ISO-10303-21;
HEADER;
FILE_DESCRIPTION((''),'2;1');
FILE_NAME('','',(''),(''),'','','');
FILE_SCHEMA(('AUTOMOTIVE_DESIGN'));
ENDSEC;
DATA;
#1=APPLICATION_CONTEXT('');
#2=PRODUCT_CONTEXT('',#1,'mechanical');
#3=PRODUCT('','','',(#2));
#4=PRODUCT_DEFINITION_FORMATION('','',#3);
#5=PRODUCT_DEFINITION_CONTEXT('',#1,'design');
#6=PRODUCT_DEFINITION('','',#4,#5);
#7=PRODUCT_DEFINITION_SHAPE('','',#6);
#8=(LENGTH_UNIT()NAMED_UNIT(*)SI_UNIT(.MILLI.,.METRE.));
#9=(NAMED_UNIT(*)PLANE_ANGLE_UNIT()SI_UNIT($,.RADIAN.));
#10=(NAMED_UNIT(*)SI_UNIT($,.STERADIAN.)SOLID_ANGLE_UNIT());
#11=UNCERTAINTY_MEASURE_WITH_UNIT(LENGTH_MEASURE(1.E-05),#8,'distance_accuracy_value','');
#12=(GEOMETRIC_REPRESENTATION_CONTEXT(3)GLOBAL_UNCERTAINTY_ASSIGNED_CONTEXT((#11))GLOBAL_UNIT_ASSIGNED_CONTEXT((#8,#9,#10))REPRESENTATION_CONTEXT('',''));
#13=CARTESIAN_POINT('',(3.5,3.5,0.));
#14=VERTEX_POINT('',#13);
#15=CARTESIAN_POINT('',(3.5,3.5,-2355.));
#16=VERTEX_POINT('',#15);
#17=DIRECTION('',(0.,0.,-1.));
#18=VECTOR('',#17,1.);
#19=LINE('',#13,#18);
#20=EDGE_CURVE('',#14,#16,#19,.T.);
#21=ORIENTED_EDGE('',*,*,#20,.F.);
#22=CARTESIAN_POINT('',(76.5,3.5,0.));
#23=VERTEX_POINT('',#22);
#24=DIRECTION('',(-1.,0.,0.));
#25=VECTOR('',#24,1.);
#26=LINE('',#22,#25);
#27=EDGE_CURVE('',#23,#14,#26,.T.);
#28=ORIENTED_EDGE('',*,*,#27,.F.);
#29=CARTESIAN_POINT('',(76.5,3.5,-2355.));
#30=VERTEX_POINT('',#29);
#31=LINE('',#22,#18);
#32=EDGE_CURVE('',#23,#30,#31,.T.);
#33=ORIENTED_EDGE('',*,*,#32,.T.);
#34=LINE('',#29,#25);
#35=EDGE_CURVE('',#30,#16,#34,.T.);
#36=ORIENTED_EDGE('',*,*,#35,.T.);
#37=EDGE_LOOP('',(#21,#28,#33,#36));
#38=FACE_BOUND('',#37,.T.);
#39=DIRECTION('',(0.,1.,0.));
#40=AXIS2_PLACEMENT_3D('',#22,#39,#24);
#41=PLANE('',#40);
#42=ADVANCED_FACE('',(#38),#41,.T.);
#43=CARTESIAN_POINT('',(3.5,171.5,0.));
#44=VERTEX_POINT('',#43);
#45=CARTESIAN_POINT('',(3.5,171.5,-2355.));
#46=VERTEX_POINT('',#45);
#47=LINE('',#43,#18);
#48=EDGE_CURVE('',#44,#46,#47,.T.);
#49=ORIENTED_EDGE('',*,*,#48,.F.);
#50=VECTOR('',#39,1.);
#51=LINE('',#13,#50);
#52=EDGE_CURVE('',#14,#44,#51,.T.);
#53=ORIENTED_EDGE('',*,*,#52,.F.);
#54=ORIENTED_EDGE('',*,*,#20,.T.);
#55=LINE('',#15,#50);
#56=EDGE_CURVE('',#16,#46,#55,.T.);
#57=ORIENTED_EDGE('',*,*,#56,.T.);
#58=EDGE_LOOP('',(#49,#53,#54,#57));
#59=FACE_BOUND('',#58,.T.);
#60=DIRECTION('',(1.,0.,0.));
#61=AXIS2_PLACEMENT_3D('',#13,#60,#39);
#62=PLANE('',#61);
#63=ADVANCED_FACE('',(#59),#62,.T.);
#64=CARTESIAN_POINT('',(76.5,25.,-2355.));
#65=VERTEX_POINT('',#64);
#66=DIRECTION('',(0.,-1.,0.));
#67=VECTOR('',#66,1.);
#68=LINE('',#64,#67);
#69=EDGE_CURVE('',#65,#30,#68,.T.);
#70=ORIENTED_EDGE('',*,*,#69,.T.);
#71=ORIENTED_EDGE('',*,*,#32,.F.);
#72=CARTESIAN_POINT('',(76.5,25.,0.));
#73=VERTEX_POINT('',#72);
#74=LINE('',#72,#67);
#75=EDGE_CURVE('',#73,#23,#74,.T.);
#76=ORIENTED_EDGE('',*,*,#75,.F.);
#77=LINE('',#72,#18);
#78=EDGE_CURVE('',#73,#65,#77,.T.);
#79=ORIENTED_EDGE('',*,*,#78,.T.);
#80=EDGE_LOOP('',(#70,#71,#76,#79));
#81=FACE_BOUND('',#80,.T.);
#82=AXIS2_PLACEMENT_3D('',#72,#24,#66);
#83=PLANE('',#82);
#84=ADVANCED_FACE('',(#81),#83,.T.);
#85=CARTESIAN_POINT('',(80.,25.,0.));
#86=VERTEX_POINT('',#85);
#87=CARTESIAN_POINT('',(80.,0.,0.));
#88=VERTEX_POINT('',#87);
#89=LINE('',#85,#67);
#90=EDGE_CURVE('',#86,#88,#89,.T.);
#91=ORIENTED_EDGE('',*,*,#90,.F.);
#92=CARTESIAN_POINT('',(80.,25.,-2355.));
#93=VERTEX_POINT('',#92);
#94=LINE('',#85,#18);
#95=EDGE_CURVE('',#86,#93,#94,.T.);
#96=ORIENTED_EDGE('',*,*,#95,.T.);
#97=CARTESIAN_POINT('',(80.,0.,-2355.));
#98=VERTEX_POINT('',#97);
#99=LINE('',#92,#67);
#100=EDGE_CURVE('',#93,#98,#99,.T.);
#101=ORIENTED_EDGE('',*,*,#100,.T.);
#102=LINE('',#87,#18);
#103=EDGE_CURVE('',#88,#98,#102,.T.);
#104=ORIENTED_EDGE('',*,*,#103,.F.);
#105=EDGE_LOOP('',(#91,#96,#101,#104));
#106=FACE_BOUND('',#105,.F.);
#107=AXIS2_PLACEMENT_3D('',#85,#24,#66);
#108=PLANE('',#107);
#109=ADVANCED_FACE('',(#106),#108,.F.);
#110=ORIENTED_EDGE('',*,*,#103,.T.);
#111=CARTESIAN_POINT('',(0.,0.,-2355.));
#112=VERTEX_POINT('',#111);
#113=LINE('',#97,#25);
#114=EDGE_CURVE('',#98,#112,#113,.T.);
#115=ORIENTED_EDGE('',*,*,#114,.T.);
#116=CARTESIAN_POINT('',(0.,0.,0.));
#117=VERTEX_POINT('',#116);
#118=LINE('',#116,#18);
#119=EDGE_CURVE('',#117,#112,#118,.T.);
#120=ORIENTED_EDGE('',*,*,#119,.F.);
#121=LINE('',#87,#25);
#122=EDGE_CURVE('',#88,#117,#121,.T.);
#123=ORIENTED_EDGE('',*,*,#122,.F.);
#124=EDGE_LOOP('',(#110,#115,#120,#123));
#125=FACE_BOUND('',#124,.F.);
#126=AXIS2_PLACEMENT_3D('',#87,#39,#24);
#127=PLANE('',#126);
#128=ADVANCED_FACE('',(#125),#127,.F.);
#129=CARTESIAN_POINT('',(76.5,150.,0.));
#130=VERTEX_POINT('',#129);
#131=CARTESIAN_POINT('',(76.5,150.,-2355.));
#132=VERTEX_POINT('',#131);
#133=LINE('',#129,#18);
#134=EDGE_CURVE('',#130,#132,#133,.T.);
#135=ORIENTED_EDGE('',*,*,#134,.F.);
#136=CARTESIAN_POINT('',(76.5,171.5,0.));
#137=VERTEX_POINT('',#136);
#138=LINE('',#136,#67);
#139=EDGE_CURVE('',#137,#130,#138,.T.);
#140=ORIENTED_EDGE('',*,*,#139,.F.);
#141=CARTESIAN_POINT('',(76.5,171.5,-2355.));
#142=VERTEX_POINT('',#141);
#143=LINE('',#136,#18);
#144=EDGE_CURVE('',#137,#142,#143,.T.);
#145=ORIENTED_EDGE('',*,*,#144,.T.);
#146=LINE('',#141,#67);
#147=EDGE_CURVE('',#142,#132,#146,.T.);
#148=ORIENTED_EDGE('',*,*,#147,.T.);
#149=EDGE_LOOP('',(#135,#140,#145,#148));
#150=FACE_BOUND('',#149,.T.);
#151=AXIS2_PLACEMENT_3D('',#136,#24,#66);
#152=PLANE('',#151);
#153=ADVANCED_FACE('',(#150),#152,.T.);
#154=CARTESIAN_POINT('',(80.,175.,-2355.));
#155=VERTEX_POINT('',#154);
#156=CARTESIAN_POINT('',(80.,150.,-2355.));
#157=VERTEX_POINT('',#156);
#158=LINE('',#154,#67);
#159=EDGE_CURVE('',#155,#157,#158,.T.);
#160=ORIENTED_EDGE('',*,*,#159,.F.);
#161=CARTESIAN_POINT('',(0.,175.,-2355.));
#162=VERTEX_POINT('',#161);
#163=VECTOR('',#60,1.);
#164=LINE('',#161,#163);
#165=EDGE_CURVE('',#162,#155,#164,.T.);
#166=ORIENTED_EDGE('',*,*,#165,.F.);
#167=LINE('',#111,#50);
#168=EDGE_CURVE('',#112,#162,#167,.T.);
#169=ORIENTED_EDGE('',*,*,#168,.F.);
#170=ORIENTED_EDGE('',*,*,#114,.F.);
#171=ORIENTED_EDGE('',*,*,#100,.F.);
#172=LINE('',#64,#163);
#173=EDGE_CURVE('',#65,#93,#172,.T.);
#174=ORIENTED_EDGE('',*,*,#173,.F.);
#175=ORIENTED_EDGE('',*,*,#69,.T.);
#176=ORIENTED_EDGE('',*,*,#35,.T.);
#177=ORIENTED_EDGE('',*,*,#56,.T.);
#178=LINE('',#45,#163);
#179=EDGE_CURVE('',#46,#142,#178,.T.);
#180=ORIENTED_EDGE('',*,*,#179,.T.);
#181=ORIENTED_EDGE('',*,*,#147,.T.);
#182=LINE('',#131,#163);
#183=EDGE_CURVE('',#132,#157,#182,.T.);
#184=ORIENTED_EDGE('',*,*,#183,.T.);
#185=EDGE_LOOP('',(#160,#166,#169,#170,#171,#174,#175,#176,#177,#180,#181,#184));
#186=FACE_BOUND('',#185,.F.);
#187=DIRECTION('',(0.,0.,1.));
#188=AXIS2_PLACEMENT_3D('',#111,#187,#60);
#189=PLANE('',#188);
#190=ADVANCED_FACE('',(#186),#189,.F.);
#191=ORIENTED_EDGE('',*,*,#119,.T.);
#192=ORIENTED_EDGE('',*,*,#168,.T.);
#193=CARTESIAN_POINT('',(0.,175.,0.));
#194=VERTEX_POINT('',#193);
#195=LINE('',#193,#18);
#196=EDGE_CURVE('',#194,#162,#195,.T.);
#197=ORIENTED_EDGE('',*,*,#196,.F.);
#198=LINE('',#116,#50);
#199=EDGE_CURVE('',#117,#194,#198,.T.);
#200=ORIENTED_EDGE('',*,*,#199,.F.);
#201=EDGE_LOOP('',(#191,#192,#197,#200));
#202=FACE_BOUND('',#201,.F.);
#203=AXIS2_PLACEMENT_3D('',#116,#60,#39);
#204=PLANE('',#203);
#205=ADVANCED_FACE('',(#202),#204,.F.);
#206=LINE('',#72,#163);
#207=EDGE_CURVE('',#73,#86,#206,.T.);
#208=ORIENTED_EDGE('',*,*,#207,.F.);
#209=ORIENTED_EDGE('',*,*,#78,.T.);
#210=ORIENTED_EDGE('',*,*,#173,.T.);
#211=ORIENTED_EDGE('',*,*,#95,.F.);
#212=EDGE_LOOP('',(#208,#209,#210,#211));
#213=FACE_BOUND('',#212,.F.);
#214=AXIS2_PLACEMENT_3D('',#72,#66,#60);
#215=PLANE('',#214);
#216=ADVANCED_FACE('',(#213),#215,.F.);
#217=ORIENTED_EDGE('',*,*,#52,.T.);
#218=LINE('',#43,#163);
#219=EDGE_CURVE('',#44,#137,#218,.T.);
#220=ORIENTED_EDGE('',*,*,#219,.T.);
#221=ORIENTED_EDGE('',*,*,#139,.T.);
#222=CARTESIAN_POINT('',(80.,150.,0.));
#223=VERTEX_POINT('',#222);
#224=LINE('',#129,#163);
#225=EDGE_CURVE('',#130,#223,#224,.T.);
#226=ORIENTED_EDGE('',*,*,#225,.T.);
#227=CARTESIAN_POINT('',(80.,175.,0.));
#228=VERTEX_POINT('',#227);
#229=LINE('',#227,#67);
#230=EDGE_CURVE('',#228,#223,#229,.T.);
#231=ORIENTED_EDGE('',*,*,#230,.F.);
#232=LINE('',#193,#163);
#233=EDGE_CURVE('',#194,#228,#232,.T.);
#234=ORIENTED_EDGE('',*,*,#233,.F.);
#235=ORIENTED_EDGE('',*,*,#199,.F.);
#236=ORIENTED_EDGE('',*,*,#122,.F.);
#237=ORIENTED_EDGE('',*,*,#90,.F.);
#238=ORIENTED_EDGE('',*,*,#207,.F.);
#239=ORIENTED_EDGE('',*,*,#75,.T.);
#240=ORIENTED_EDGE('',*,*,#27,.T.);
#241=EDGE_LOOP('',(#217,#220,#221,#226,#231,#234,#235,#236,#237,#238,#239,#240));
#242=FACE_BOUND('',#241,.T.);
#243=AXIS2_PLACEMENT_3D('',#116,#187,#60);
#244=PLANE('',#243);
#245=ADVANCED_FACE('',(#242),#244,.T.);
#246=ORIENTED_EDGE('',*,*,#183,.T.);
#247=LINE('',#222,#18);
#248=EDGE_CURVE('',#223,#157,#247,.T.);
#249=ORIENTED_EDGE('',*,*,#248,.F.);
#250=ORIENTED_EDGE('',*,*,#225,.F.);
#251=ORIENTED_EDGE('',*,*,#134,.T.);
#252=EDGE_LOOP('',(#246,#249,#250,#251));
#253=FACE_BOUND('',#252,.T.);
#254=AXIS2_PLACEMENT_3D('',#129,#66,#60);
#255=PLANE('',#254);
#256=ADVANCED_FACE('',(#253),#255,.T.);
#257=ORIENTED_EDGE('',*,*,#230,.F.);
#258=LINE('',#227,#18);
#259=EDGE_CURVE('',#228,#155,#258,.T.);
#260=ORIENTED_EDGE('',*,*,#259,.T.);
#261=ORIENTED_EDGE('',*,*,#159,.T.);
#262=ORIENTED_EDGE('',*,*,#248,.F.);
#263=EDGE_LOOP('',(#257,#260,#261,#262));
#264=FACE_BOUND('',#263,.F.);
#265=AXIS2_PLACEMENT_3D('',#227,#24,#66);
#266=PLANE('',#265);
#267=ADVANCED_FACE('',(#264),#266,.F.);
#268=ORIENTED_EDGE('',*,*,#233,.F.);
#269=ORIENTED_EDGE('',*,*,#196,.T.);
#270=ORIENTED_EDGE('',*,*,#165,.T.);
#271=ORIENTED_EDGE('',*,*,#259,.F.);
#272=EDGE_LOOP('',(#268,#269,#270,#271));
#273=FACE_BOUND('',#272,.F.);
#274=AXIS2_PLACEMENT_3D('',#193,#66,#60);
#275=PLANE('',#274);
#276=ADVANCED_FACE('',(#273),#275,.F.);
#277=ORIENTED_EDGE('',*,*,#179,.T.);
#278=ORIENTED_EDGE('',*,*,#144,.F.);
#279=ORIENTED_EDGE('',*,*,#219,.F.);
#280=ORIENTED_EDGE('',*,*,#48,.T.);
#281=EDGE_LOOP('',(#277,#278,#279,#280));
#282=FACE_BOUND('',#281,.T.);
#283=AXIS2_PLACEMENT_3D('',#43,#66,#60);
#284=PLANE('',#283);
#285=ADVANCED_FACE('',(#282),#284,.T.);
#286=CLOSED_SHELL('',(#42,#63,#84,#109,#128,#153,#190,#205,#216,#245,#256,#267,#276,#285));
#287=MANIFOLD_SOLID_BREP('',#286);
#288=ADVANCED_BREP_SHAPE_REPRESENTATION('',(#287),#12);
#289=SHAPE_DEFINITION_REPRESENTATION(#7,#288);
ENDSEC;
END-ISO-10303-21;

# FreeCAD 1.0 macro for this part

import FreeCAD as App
import Part
import Sketcher

V = App.Vector

doc = App.newDocument("Part")
body = doc.addObject("PartDesign::Body", "Body")

# Sketch on XY plane
sketch1 = body.newObject("Sketcher::SketchObject", "Sketch")
sketch1.AttachmentSupport = (doc.getObject("XY_Plane"), [""])
sketch1.MapMode = "FlatFace"
sketch1.addGeometry([
    Part.LineSegment(V(80, 0, 0), V(80, 25, 0)),  # 0
    Part.LineSegment(V(80, 25, 0), V(76.5, 25, 0)),  # 1
    Part.LineSegment(V(76.5, 25, 0), V(76.5, 3.5, 0)),  # 2
    Part.LineSegment(V(76.5, 3.5, 0), V(3.5, 3.5, 0)),  # 3
    Part.LineSegment(V(3.5, 3.5, 0), V(3.5, 171.5, 0)),  # 4
    Part.LineSegment(V(3.5, 171.5, 0), V(76.5, 171.5, 0)),  # 5
    Part.LineSegment(V(76.5, 171.5, 0), V(76.5, 150, 0)),  # 6
    Part.LineSegment(V(76.5, 150, 0), V(80, 150, 0)),  # 7
    Part.LineSegment(V(80, 150, 0), V(80, 175, 0)),  # 8
    Part.LineSegment(V(80, 175, 0), V(0, 175, 0)),  # 9
    Part.LineSegment(V(0, 175, 0), V(0, 0, 0)),  # 10
    Part.LineSegment(V(0, 0, 0), V(80, 0, 0)),  # 11
], False)
sketch1.addConstraint([
    Sketcher.Constraint("Coincident", 0, 2, 1, 1),
    Sketcher.Constraint("Coincident", 1, 2, 2, 1),
    Sketcher.Constraint("Coincident", 2, 2, 3, 1),
    Sketcher.Constraint("Coincident", 3, 2, 4, 1),
    Sketcher.Constraint("Coincident", 4, 2, 5, 1),
    Sketcher.Constraint("Coincident", 5, 2, 6, 1),
    Sketcher.Constraint("Coincident", 6, 2, 7, 1),
    Sketcher.Constraint("Coincident", 7, 2, 8, 1),
    Sketcher.Constraint("Coincident", 8, 2, 9, 1),
    Sketcher.Constraint("Coincident", 9, 2, 10, 1),
    Sketcher.Constraint("Coincident", 10, 2, 11, 1),
    Sketcher.Constraint("Coincident", 11, 2, 0, 1),
    Sketcher.Constraint("Vertical", 0),
    Sketcher.Constraint("Horizontal", 1),
    Sketcher.Constraint("Vertical", 2),
    Sketcher.Constraint("Horizontal", 3),
    Sketcher.Constraint("Vertical", 4),
    Sketcher.Constraint("Horizontal", 5),
    Sketcher.Constraint("Vertical", 6),
    Sketcher.Constraint("Horizontal", 7),
    Sketcher.Constraint("Vertical", 8),
    Sketcher.Constraint("Horizontal", 9),
    Sketcher.Constraint("Vertical", 10),
    Sketcher.Constraint("Horizontal", 11),
    Sketcher.Constraint("Coincident", 10, 2, -1, 1),
    Sketcher.Constraint("Vertical", 2, 2, 5, 2),
    Sketcher.Constraint("Vertical", 0, 2, 7, 2),
    Sketcher.Constraint("Equal", 2, 6),
    Sketcher.Constraint("Equal", 0, 8),
    Sketcher.Constraint("DistanceX", 9, 2, 9, 1, 80.0),
    Sketcher.Constraint("DistanceY", 0, 1, 0, 2, 25.0),
    Sketcher.Constraint("DistanceY", 10, 2, 10, 1, 175.0),
    Sketcher.Constraint("DistanceX", 1, 2, 1, 1, 3.5),
    Sketcher.Constraint("DistanceY", -1, 1, 2, 2, 3.5),
    Sketcher.Constraint("DistanceX", -1, 1, 3, 2, 3.5),
])
pad1 = body.newObject("PartDesign::Pad", "Pad")
pad1.Profile = sketch1
pad1.Length = 2355
pad1.Reversed = True

doc.recompute()
